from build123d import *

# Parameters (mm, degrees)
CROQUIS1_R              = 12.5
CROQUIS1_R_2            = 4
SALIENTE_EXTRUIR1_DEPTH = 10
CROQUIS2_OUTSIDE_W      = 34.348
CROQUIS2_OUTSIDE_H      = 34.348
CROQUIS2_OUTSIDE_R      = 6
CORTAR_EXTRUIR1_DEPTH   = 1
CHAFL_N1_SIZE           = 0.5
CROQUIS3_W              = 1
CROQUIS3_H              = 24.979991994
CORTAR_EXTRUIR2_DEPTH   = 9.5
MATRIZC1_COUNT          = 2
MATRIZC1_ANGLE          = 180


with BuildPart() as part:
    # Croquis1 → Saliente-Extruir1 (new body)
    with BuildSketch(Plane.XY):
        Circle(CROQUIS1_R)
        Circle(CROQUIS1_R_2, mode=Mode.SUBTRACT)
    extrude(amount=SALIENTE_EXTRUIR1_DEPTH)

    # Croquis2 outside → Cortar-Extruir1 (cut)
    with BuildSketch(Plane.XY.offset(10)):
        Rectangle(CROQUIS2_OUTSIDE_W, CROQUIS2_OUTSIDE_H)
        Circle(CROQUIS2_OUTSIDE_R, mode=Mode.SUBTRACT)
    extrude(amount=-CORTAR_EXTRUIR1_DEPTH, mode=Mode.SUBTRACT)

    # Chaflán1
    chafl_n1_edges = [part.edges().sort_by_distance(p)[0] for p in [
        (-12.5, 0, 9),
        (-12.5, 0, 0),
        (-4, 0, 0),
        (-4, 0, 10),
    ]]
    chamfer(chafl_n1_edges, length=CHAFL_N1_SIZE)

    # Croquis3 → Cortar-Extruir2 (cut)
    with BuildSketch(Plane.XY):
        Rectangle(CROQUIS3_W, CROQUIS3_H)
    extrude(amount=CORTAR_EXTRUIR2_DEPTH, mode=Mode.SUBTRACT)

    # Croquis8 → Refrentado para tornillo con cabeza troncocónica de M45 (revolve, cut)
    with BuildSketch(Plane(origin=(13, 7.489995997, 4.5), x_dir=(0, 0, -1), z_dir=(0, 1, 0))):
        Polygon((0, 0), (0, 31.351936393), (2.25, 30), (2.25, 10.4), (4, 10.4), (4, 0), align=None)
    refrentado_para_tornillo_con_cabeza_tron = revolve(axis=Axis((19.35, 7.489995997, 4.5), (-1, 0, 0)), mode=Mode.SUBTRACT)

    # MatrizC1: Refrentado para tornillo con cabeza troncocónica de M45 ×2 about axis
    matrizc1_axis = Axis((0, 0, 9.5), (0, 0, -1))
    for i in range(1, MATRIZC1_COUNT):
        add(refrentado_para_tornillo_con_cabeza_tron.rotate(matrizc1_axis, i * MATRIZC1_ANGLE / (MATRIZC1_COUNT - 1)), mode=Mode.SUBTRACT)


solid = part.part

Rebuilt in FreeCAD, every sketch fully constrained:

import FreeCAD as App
import Part
import Sketcher

V = App.Vector
Q = App.Units.Quantity


def edges_at(feature, points):
    """Names of the edges that pass closest to the given points."""
    edges = feature.Shape.Edges
    near = lambda p: min(range(len(edges)), key=lambda i: edges[i].distToShape(Part.Vertex(*p))[0])
    return sorted({f"Edge{near(p) + 1}" for p in points})


def add_polygon(sketch, points):
    """Adds a closed chain of lines whose ends are joined by coincident constraints."""
    first, n = sketch.GeometryCount, len(points)
    for a, b in zip(points, points[1:] + points[:1]):
        sketch.addGeometry(Part.LineSegment(App.Vector(*a, 0), App.Vector(*b, 0)), False)
    for i in range(n):
        sketch.addConstraint(Sketcher.Constraint("Coincident", first + i, 2, first + (i + 1) % n, 1))

doc = App.newDocument("Part")
body = doc.addObject("PartDesign::Body", "Body")
body.AllowCompound = True

# Sketch on XY plane
sketch1 = body.newObject("Sketcher::SketchObject", "Sketch")
sketch1.AttachmentSupport = (doc.getObject("XY_Plane"), [""])
sketch1.MapMode = "FlatFace"
sketch1.addGeometry(Part.Circle(V(0, 0, 0), V(0, 0, 1), 12.5), False)
sketch1.addGeometry(Part.Circle(V(0, 0, 0), V(0, 0, 1), 4), False)
sketch1.addConstraint(Sketcher.Constraint("Coincident", 0, 3, -1, 1))
sketch1.addConstraint(Sketcher.Constraint("Coincident", 1, 3, -1, 1))
sketch1.addConstraint(Sketcher.Constraint("Diameter", 0, Q("25 mm")))
sketch1.addConstraint(Sketcher.Constraint("Diameter", 1, Q("8 mm")))
pad1 = body.newObject("PartDesign::Pad", "Pad")
pad1.Profile = sketch1
pad1.Length = 10

# Sketch on XY plane
sketch2 = body.newObject("Sketcher::SketchObject", "Sketch001")
sketch2.AttachmentSupport = (doc.getObject("XY_Plane"), [""])
sketch2.MapMode = "FlatFace"
sketch2.AttachmentOffset = App.Placement(V(0, 0, 10), App.Rotation())
add_polygon(sketch2, [(-17, 17), (-17, -17), (17, -17), (17, 17)])  # lines 0-3
sketch2.addGeometry(Part.Circle(V(0, 0, 0), V(0, 0, 1), 6), False)  # 4
sketch2.addConstraint(Sketcher.Constraint("Vertical", 0))
sketch2.addConstraint(Sketcher.Constraint("Horizontal", 1))
sketch2.addConstraint(Sketcher.Constraint("Vertical", 2))
sketch2.addConstraint(Sketcher.Constraint("Horizontal", 3))
sketch2.addConstraint(Sketcher.Constraint("Coincident", 4, 3, -1, 1))
sketch2.addConstraint(Sketcher.Constraint("Symmetric", 0, 2, 2, 2, -1, 1))
sketch2.addConstraint(Sketcher.Constraint("Equal", 3, 0))
sketch2.addConstraint(Sketcher.Constraint("Diameter", 4, Q("12 mm")))
sketch2.addConstraint(Sketcher.Constraint("DistanceX", 1, 1, 1, 2, Q("34.348 mm")))
pocket1 = body.newObject("PartDesign::Pocket", "Pocket")
pocket1.Profile = sketch2
pocket1.Length = 1
doc.recompute()

chamfer = body.newObject("PartDesign::Chamfer", "Chamfer")
chamfer.Base = (pocket1, edges_at(pocket1, [
    (-12.5, 0, 9),
    (-12.5, 0, 0),
    (-4, 0, 0),
    (-4, 0, 10),
]))
chamfer.Size = 0.5

# Sketch on XY plane
sketch3 = body.newObject("Sketcher::SketchObject", "Sketch002")
sketch3.AttachmentSupport = (doc.getObject("XY_Plane"), [""])
sketch3.MapMode = "FlatFace"
add_polygon(sketch3, [(-0.5, 12.5), (-0.5, -12.5), (0.5, -12.5), (0.5, 12.5)])  # lines 0-3
sketch3.addConstraint(Sketcher.Constraint("Vertical", 0))
sketch3.addConstraint(Sketcher.Constraint("Horizontal", 1))
sketch3.addConstraint(Sketcher.Constraint("Vertical", 2))
sketch3.addConstraint(Sketcher.Constraint("Horizontal", 3))
sketch3.addConstraint(Sketcher.Constraint("Symmetric", 0, 2, 2, 2, -1, 1))
sketch3.addConstraint(Sketcher.Constraint("DistanceX", 1, 1, 1, 2, Q("1 mm")))
sketch3.addConstraint(Sketcher.Constraint("DistanceY", 0, 2, 0, 1, Q("24.979992 mm")))
pocket2 = body.newObject("PartDesign::Pocket", "Pocket001")
pocket2.Profile = sketch3
pocket2.Length = 9.5
pocket2.Reversed = True

# Sketch on XZ plane
sketch4 = body.newObject("Sketcher::SketchObject", "Sketch003")
sketch4.AttachmentSupport = (doc.getObject("XZ_Plane"), [""])
sketch4.MapMode = "FlatFace"
sketch4.AttachmentOffset = App.Placement(V(0, 0, -7.489996), App.Rotation())
add_polygon(sketch4, [(-18.4, 4.5), (13, 4.5), (13, 0.5), (2.6, 0.5), (2.6, 2.2), (-17, 2.2)])  # lines 0-5
sketch4.addGeometry(Part.LineSegment(V(13, 4.5, 0), V(-18.4, 4.5, 0)), True)  # axis
sketch4.addConstraint(Sketcher.Constraint("Horizontal", 0))
sketch4.addConstraint(Sketcher.Constraint("Vertical", 1))
sketch4.addConstraint(Sketcher.Constraint("Horizontal", 2))
sketch4.addConstraint(Sketcher.Constraint("Vertical", 3))
sketch4.addConstraint(Sketcher.Constraint("Horizontal", 4))
sketch4.addConstraint(Sketcher.Constraint("Horizontal", 6))
sketch4.addConstraint(Sketcher.Constraint("Coincident", 6, 1, 0, 2))
sketch4.addConstraint(Sketcher.Constraint("Equal", 0, 6))
sketch4.addConstraint(Sketcher.Constraint("DistanceY", 1, 2, 1, 1, Q("4 mm")))
sketch4.addConstraint(Sketcher.Constraint("Angle", 5, Q("121 deg")))
sketch4.addConstraint(Sketcher.Constraint("DistanceX", 2, 2, 2, 1, Q("10.4 mm")))
sketch4.addConstraint(Sketcher.Constraint("DistanceX", 4, 2, 4, 1, Q("19.6 mm")))
sketch4.addConstraint(Sketcher.Constraint("DistanceX", -1, 1, 0, 2, Q("13 mm")))
sketch4.addConstraint(Sketcher.Constraint("DistanceY", 3, 1, 3, 2, Q("1.75 mm")))
sketch4.addConstraint(Sketcher.Constraint("DistanceY", -1, 1, 0, 2, Q("4.5 mm")))
groove = body.newObject("PartDesign::Groove", "Groove")
groove.Profile = sketch4
groove.ReferenceAxis = (sketch4, ["Axis0"])
groove.Angle = 360
doc.recompute()

polarpattern = body.newObject("PartDesign::PolarPattern", "PolarPattern")
polarpattern.Originals = [groove]
polarpattern.Axis = (doc.getObject("Z_Axis"), [""])
polarpattern.Angle = 360
polarpattern.Occurrences = 2
body.Tip = polarpattern

doc.recompute()
